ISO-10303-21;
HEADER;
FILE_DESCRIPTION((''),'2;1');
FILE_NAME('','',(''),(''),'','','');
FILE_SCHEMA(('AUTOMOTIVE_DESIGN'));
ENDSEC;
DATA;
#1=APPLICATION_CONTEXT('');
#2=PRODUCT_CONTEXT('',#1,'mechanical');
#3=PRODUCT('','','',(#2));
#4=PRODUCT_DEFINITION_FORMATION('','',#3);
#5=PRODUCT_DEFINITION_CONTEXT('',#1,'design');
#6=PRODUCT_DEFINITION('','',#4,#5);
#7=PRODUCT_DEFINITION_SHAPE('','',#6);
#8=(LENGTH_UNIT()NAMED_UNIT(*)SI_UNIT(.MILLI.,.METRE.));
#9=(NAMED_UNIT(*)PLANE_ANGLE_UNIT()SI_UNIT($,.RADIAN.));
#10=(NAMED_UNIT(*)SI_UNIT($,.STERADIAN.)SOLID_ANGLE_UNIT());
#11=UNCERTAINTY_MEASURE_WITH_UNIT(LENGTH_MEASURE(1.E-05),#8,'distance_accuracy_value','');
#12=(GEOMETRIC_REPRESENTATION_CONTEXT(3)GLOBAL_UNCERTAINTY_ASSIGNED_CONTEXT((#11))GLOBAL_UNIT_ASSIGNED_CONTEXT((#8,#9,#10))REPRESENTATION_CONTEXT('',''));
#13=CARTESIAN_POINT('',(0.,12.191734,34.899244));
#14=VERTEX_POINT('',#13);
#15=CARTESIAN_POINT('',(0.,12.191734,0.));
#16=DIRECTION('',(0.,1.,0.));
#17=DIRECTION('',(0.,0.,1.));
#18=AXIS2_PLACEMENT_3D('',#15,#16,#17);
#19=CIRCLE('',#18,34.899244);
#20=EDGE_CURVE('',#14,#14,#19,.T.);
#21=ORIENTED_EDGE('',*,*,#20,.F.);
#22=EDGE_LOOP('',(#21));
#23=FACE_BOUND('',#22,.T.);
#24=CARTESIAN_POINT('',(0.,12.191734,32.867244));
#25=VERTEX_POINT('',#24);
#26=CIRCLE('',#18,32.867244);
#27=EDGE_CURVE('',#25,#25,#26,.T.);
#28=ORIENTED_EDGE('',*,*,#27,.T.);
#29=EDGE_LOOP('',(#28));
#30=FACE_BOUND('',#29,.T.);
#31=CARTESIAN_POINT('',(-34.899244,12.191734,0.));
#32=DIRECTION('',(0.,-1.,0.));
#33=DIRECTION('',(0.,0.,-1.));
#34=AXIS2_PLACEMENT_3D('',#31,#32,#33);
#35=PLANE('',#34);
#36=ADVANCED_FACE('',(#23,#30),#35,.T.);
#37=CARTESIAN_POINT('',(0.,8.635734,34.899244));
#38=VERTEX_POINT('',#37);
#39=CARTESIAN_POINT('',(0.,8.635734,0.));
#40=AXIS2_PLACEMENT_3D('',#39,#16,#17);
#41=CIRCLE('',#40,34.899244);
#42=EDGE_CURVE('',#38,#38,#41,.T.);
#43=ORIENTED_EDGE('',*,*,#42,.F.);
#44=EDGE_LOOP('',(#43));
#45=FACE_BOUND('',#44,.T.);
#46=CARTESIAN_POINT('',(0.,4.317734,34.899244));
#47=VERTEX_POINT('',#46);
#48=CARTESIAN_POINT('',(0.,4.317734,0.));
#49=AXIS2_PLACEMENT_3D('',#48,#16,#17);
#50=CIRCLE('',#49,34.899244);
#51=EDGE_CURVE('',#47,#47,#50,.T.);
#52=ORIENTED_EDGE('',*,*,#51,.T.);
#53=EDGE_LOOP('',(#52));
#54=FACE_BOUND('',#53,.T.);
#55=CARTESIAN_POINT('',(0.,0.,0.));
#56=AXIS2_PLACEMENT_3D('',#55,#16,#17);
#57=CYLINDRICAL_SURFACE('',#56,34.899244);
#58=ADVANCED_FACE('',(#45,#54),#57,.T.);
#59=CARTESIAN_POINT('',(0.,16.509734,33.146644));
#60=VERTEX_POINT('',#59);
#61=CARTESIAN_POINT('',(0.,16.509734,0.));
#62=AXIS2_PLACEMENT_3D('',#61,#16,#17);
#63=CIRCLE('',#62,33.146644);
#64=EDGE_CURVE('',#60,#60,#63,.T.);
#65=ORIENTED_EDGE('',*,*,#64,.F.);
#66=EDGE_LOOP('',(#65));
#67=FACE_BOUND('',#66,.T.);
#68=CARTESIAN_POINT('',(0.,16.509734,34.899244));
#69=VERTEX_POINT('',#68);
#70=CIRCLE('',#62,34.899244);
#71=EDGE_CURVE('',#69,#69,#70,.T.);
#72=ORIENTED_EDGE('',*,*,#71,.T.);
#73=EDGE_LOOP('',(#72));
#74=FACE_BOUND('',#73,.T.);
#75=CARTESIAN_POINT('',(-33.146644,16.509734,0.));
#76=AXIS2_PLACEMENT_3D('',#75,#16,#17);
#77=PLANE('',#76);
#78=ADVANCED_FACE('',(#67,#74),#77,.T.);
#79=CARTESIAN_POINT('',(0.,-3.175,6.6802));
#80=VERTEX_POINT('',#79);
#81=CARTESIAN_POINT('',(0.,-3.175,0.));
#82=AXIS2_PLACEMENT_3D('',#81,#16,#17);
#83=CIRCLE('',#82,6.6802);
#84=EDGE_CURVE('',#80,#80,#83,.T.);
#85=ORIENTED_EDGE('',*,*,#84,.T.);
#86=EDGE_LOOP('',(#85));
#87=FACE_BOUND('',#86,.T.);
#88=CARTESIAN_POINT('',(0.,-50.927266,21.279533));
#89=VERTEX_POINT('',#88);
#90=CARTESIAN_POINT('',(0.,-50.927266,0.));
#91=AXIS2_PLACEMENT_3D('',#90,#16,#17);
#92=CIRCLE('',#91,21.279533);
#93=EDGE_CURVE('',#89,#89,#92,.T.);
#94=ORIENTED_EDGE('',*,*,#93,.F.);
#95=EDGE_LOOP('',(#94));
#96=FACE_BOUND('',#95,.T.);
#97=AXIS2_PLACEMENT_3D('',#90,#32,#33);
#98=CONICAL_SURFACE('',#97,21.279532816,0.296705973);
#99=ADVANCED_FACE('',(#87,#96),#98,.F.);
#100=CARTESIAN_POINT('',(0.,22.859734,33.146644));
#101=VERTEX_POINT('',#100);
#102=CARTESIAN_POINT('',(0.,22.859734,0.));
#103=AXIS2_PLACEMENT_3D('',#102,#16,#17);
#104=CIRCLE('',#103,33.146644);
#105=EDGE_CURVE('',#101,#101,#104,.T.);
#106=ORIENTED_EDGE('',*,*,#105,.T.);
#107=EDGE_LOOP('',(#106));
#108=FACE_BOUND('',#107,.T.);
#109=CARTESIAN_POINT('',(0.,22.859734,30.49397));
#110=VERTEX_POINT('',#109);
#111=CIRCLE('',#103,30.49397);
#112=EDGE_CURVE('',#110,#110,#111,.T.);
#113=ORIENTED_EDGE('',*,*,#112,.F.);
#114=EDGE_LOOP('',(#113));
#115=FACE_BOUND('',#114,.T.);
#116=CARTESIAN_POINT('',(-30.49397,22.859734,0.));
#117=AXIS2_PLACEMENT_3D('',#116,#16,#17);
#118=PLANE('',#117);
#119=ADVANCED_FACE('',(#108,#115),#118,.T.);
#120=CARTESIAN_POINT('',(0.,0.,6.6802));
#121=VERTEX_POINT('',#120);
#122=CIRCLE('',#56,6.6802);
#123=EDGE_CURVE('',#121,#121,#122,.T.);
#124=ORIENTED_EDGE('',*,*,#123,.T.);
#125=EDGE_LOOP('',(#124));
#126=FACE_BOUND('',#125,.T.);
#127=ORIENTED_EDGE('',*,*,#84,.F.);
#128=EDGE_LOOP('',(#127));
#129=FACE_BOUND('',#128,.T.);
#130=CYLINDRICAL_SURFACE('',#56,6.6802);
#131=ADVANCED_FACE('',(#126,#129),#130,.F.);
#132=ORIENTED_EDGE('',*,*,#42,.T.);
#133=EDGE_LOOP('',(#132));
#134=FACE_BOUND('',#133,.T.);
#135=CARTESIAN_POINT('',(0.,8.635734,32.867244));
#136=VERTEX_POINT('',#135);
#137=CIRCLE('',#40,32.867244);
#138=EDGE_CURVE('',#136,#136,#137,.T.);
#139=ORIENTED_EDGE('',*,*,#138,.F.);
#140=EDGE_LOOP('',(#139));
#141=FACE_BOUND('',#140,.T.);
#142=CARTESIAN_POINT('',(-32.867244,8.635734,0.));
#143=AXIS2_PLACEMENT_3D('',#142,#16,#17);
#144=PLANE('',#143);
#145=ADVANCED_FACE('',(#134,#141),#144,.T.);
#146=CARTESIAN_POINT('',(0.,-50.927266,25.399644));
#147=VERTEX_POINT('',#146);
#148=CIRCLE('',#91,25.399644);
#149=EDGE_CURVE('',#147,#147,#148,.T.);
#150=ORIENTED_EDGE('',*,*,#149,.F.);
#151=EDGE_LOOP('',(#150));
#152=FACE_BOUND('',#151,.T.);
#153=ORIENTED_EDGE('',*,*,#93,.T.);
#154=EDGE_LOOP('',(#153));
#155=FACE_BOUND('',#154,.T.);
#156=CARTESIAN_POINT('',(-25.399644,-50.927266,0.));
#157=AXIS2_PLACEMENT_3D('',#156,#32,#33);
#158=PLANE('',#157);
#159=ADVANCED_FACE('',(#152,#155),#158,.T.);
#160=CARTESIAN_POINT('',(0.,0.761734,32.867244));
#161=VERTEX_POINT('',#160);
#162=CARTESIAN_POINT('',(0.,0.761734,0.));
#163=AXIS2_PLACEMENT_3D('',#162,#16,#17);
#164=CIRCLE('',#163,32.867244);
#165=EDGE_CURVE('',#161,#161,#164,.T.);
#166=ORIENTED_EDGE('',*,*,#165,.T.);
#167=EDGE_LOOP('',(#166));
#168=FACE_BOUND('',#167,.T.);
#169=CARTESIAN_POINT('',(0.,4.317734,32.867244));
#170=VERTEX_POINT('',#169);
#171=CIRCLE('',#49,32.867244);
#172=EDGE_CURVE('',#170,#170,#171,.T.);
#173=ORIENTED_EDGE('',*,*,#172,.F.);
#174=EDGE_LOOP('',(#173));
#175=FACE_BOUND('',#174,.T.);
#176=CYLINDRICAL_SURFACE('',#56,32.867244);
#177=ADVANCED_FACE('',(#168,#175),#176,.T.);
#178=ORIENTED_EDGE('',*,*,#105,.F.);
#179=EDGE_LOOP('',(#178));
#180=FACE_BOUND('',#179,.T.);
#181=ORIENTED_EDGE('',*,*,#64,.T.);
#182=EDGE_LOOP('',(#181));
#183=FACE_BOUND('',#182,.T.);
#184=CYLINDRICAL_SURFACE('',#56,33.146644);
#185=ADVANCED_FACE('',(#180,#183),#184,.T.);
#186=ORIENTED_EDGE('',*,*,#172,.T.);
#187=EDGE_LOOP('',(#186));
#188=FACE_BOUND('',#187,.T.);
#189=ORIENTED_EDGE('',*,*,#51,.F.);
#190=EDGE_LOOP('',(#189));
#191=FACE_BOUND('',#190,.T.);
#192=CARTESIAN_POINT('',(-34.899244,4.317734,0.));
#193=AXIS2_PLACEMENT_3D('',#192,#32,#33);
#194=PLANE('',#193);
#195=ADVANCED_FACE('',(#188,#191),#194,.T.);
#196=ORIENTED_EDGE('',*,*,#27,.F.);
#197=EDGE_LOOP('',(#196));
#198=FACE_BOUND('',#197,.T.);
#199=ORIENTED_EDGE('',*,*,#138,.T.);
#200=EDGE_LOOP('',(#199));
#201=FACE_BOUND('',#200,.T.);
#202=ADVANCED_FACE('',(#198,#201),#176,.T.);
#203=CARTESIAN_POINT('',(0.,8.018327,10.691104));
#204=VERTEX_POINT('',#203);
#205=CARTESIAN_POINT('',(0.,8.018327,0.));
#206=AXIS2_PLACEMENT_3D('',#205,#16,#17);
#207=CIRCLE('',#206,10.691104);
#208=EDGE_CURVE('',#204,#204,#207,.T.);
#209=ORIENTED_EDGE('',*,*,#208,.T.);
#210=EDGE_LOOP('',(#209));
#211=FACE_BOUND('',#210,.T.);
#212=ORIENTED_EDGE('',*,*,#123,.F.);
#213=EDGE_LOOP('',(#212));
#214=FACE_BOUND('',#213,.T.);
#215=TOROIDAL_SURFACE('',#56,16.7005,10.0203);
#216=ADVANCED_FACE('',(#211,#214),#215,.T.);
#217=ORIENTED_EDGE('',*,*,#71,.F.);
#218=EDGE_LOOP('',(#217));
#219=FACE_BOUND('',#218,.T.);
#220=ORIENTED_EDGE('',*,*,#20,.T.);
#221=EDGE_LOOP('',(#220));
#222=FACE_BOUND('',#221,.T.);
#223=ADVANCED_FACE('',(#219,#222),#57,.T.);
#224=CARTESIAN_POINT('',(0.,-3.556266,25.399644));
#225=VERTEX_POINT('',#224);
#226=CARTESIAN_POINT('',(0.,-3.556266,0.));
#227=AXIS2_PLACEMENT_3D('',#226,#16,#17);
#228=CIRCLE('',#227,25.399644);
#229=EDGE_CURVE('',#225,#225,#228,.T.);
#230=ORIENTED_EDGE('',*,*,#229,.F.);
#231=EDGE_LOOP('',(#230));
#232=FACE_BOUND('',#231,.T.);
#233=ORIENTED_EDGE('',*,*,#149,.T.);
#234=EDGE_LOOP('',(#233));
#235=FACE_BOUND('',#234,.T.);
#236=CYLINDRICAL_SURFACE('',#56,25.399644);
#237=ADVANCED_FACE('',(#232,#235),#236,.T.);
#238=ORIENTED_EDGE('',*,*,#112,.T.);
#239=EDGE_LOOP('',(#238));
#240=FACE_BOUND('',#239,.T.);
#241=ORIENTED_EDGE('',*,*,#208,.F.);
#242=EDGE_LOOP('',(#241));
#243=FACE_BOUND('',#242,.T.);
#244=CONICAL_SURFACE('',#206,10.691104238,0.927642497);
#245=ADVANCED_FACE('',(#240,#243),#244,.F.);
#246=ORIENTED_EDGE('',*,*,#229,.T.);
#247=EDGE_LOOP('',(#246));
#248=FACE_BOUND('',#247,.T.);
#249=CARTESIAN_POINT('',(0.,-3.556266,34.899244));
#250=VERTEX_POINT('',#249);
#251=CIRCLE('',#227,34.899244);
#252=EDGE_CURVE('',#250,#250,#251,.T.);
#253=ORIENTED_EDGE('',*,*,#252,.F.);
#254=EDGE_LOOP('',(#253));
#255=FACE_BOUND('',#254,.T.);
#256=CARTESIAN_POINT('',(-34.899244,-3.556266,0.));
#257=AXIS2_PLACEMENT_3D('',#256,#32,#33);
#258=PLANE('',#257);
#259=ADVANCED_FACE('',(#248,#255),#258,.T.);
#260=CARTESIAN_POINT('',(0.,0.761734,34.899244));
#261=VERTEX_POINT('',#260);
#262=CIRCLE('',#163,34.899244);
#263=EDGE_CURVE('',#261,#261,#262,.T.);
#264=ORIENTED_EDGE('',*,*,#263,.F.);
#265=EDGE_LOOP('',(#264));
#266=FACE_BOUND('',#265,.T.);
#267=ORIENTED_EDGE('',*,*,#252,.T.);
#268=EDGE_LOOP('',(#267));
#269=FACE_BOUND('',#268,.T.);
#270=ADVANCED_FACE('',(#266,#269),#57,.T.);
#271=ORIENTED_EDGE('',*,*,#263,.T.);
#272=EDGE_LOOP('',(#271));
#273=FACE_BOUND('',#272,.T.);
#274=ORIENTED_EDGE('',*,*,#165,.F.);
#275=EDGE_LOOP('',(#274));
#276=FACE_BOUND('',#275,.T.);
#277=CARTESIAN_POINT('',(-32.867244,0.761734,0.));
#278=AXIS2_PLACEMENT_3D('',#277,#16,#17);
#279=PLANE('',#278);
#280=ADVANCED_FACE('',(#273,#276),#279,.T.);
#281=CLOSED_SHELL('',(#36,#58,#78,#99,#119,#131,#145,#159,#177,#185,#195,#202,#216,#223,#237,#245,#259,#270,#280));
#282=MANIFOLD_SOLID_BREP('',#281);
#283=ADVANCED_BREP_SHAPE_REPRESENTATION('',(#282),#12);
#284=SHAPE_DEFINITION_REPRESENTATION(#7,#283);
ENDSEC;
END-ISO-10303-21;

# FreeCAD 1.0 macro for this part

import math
import FreeCAD as App
import Part
import Sketcher
Q = App.Units.Quantity

doc = App.newDocument("Part")
body = doc.addObject("PartDesign::Body", "Body")

sketch1 = body.newObject("Sketcher::SketchObject", "Sketch")
sketch1.AttachmentSupport = (doc.getObject("XY_Plane"), [""])
sketch1.MapMode = "FlatFace"
sketch1.addGeometry(Part.LineSegment(App.Vector(-6.7, -3.2, 0), App.Vector(-6.7, 0, 0)), False)
sketch1.addGeometry(Part.ArcOfCircle(Part.Circle(App.Vector(-16.7, 0, 0), App.Vector(0, 0, 1), 10), math.radians(0), math.radians(53)), False)
sketch1.addGeometry(Part.LineSegment(App.Vector(-10.7, 8, 0), App.Vector(-30.5, 22.9, 0)), False)
sketch1.addGeometry(Part.LineSegment(App.Vector(-30.5, 22.9, 0), App.Vector(-33.1, 22.9, 0)), False)
sketch1.addGeometry(Part.LineSegment(App.Vector(-33.1, 22.9, 0), App.Vector(-33.1, 16.5, 0)), False)
sketch1.addGeometry(Part.LineSegment(App.Vector(-33.1, 16.5, 0), App.Vector(-34.9, 16.5, 0)), False)
sketch1.addGeometry(Part.LineSegment(App.Vector(-34.9, 16.5, 0), App.Vector(-34.9, 12.2, 0)), False)
sketch1.addGeometry(Part.LineSegment(App.Vector(-34.9, 12.2, 0), App.Vector(-32.9, 12.2, 0)), False)
sketch1.addGeometry(Part.LineSegment(App.Vector(-32.9, 12.2, 0), App.Vector(-32.9, 8.6, 0)), False)
sketch1.addGeometry(Part.LineSegment(App.Vector(-32.9, 8.6, 0), App.Vector(-34.9, 8.6, 0)), False)
sketch1.addGeometry(Part.LineSegment(App.Vector(-34.9, 8.6, 0), App.Vector(-34.9, 4.3, 0)), False)
sketch1.addGeometry(Part.LineSegment(App.Vector(-34.9, 4.3, 0), App.Vector(-32.9, 4.3, 0)), False)
sketch1.addGeometry(Part.LineSegment(App.Vector(-32.9, 4.3, 0), App.Vector(-32.9, 0.8, 0)), False)
sketch1.addGeometry(Part.LineSegment(App.Vector(-32.9, 0.8, 0), App.Vector(-34.9, 0.8, 0)), False)
sketch1.addGeometry(Part.LineSegment(App.Vector(-34.9, 0.8, 0), App.Vector(-34.9, -3.6, 0)), False)
sketch1.addGeometry(Part.LineSegment(App.Vector(-34.9, -3.6, 0), App.Vector(-25.4, -3.6, 0)), False)
sketch1.addGeometry(Part.LineSegment(App.Vector(-25.4, -3.6, 0), App.Vector(-25.4, -50.9, 0)), False)
sketch1.addGeometry(Part.LineSegment(App.Vector(-25.4, -50.9, 0), App.Vector(-21.3, -50.9, 0)), False)
sketch1.addGeometry(Part.LineSegment(App.Vector(-21.3, -50.9, 0), App.Vector(-6.7, -3.2, 0)), False)
sketch1.addConstraint(Sketcher.Constraint("Tangent", 0, 2, 1, 1))
sketch1.addConstraint(Sketcher.Constraint("Tangent", 1, 2, 2, 1))
sketch1.addConstraint(Sketcher.Constraint("Coincident", 2, 2, 3, 1))
sketch1.addConstraint(Sketcher.Constraint("Coincident", 3, 2, 4, 1))
sketch1.addConstraint(Sketcher.Constraint("Coincident", 4, 2, 5, 1))
sketch1.addConstraint(Sketcher.Constraint("Coincident", 5, 2, 6, 1))
sketch1.addConstraint(Sketcher.Constraint("Coincident", 6, 2, 7, 1))
sketch1.addConstraint(Sketcher.Constraint("Coincident", 7, 2, 8, 1))
sketch1.addConstraint(Sketcher.Constraint("Coincident", 8, 2, 9, 1))
sketch1.addConstraint(Sketcher.Constraint("Coincident", 9, 2, 10, 1))
sketch1.addConstraint(Sketcher.Constraint("Coincident", 10, 2, 11, 1))
sketch1.addConstraint(Sketcher.Constraint("Coincident", 11, 2, 12, 1))
sketch1.addConstraint(Sketcher.Constraint("Coincident", 12, 2, 13, 1))
sketch1.addConstraint(Sketcher.Constraint("Coincident", 13, 2, 14, 1))
sketch1.addConstraint(Sketcher.Constraint("Coincident", 14, 2, 15, 1))
sketch1.addConstraint(Sketcher.Constraint("Coincident", 15, 2, 16, 1))
sketch1.addConstraint(Sketcher.Constraint("Coincident", 16, 2, 17, 1))
sketch1.addConstraint(Sketcher.Constraint("Coincident", 17, 2, 18, 1))
sketch1.addConstraint(Sketcher.Constraint("Coincident", 18, 2, 0, 1))
sketch1.addConstraint(Sketcher.Constraint("Vertical", 0))
sketch1.addConstraint(Sketcher.Constraint("Horizontal", 3))
sketch1.addConstraint(Sketcher.Constraint("Vertical", 4))
sketch1.addConstraint(Sketcher.Constraint("Horizontal", 5))
sketch1.addConstraint(Sketcher.Constraint("Vertical", 6))
sketch1.addConstraint(Sketcher.Constraint("Horizontal", 7))
sketch1.addConstraint(Sketcher.Constraint("Vertical", 8))
sketch1.addConstraint(Sketcher.Constraint("Horizontal", 9))
sketch1.addConstraint(Sketcher.Constraint("Vertical", 10))
sketch1.addConstraint(Sketcher.Constraint("Horizontal", 11))
sketch1.addConstraint(Sketcher.Constraint("Vertical", 12))
sketch1.addConstraint(Sketcher.Constraint("Horizontal", 13))
sketch1.addConstraint(Sketcher.Constraint("Vertical", 14))
sketch1.addConstraint(Sketcher.Constraint("Horizontal", 15))
sketch1.addConstraint(Sketcher.Constraint("Vertical", 16))
sketch1.addConstraint(Sketcher.Constraint("Horizontal", 17))
sketch1.addConstraint(Sketcher.Constraint("PointOnObject", 1, 3, -1))
sketch1.addConstraint(Sketcher.Constraint("Vertical", 6, 2, 9, 2))
sketch1.addConstraint(Sketcher.Constraint("Vertical", 8, 2, 11, 2))
sketch1.addConstraint(Sketcher.Constraint("Vertical", 10, 2, 13, 2))
sketch1.addConstraint(Sketcher.Constraint("Equal", 6, 10))
sketch1.addConstraint(Sketcher.Constraint("Equal", 8, 12))
sketch1.addConstraint(Sketcher.Constraint("Equal", 10, 14))
sketch1.addConstraint(Sketcher.Constraint("Angle", 18, Q("73 deg")))
sketch1.addConstraint(Sketcher.Constraint("DistanceX", 7, 1, 7, 2, Q("0.08 in")))
sketch1.addConstraint(Sketcher.Constraint("DistanceY", 4, 2, 4, 1, Q("0.25 in")))
sketch1.addConstraint(Sketcher.Constraint("DistanceY", 6, 2, 6, 1, Q("0.17 in")))
sketch1.addConstraint(Sketcher.Constraint("DistanceY", 8, 2, 8, 1, Q("0.14 in")))
sketch1.addConstraint(Sketcher.Constraint("Radius", 1, Q("0.3945 in")))
sketch1.addConstraint(Sketcher.Constraint("DistanceX", 5, 2, 5, 1, Q("0.069 in")))
sketch1.addConstraint(Sketcher.Constraint("DistanceX", 15, 1, 15, 2, Q("0.374 in")))
sketch1.addConstraint(Sketcher.Constraint("DistanceY", 0, 1, 0, 2, Q("0.125 in")))
sketch1.addConstraint(Sketcher.Constraint("DistanceY", 16, 2, 16, 1, Q("1.865 in")))
sketch1.addConstraint(Sketcher.Constraint("Angle", 2, Q("143.15 deg")))
sketch1.addConstraint(Sketcher.Constraint("DistanceX", 0, 2, -1, 1, Q("0.263 in")))
sketch1.addConstraint(Sketcher.Constraint("DistanceX", 17, 1, 17, 2, 4.120112))
sketch1.addConstraint(Sketcher.Constraint("Distance", 2, 24.747138))
revolution = body.newObject("PartDesign::Revolution", "Revolution")
revolution.Profile = sketch1
revolution.ReferenceAxis = (sketch1, ["V_Axis"])
revolution.Angle = 360

doc.recompute()
